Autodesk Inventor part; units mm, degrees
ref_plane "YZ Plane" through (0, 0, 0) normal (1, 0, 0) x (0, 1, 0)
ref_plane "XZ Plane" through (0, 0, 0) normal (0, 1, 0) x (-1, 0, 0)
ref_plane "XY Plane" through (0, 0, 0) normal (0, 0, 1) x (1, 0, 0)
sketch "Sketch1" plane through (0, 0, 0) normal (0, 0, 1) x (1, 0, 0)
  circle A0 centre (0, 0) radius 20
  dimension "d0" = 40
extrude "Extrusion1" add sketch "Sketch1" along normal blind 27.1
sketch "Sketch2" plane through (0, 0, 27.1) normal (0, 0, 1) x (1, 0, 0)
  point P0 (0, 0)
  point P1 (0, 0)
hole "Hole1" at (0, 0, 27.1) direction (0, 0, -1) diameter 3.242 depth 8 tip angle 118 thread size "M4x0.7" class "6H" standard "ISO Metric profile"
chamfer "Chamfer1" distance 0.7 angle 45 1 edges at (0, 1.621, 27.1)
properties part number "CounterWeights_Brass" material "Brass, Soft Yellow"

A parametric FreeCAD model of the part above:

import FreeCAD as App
import Part
import Sketcher

V = App.Vector


def edges_at(feature, points):
    """Names of the edges that pass closest to the given points."""
    edges = feature.Shape.Edges
    near = lambda p: min(range(len(edges)), key=lambda i: edges[i].distToShape(Part.Vertex(*p))[0])
    return sorted({f"Edge{near(p) + 1}" for p in points})

doc = App.newDocument("Part")
body = doc.addObject("PartDesign::Body", "Body")

# Sketch on XY plane
sketch1 = body.newObject("Sketcher::SketchObject", "Sketch")
sketch1.AttachmentSupport = (doc.getObject("XY_Plane"), [""])
sketch1.MapMode = "FlatFace"
sketch1.addGeometry(Part.Circle(V(0, 0, 0), V(0, 0, 1), 20), False)
sketch1.addConstraint([
    Sketcher.Constraint("Coincident", 0, 3, -1, 1),
    Sketcher.Constraint("Diameter", 0, 40.0),
])
pad1 = body.newObject("PartDesign::Pad", "Pad")
pad1.Profile = sketch1
pad1.Length = 27.1

# Sketch on XY plane
sketch2 = body.newObject("Sketcher::SketchObject", "Sketch001")
sketch2.AttachmentSupport = (doc.getObject("XY_Plane"), [""])
sketch2.MapMode = "FlatFace"
sketch2.AttachmentOffset = App.Placement(V(0, 0, 27.1), App.Rotation())
sketch2.addGeometry(Part.Circle(V(0, 0, 0), V(0, 0, 1), 1.6), False)
sketch2.addConstraint([
    Sketcher.Constraint("Coincident", 0, 3, -1, 1),
    Sketcher.Constraint("Diameter", 0, 3.242),
])
doc.recompute()
hole = body.newObject("PartDesign::Hole", "Hole")
hole.Profile = sketch2
hole.ThreadType = "None"
hole.Diameter = 3.242
hole.DepthType = "Dimension"
hole.Depth = 8
hole.DrillPoint = "Angled"
hole.DrillPointAngle = 118
doc.recompute()

chamfer = body.newObject("PartDesign::Chamfer", "Chamfer")
chamfer.Base = (hole, edges_at(hole, [(0, 1.621, 27.1)]))
chamfer.Size = 0.7

doc.recompute()
